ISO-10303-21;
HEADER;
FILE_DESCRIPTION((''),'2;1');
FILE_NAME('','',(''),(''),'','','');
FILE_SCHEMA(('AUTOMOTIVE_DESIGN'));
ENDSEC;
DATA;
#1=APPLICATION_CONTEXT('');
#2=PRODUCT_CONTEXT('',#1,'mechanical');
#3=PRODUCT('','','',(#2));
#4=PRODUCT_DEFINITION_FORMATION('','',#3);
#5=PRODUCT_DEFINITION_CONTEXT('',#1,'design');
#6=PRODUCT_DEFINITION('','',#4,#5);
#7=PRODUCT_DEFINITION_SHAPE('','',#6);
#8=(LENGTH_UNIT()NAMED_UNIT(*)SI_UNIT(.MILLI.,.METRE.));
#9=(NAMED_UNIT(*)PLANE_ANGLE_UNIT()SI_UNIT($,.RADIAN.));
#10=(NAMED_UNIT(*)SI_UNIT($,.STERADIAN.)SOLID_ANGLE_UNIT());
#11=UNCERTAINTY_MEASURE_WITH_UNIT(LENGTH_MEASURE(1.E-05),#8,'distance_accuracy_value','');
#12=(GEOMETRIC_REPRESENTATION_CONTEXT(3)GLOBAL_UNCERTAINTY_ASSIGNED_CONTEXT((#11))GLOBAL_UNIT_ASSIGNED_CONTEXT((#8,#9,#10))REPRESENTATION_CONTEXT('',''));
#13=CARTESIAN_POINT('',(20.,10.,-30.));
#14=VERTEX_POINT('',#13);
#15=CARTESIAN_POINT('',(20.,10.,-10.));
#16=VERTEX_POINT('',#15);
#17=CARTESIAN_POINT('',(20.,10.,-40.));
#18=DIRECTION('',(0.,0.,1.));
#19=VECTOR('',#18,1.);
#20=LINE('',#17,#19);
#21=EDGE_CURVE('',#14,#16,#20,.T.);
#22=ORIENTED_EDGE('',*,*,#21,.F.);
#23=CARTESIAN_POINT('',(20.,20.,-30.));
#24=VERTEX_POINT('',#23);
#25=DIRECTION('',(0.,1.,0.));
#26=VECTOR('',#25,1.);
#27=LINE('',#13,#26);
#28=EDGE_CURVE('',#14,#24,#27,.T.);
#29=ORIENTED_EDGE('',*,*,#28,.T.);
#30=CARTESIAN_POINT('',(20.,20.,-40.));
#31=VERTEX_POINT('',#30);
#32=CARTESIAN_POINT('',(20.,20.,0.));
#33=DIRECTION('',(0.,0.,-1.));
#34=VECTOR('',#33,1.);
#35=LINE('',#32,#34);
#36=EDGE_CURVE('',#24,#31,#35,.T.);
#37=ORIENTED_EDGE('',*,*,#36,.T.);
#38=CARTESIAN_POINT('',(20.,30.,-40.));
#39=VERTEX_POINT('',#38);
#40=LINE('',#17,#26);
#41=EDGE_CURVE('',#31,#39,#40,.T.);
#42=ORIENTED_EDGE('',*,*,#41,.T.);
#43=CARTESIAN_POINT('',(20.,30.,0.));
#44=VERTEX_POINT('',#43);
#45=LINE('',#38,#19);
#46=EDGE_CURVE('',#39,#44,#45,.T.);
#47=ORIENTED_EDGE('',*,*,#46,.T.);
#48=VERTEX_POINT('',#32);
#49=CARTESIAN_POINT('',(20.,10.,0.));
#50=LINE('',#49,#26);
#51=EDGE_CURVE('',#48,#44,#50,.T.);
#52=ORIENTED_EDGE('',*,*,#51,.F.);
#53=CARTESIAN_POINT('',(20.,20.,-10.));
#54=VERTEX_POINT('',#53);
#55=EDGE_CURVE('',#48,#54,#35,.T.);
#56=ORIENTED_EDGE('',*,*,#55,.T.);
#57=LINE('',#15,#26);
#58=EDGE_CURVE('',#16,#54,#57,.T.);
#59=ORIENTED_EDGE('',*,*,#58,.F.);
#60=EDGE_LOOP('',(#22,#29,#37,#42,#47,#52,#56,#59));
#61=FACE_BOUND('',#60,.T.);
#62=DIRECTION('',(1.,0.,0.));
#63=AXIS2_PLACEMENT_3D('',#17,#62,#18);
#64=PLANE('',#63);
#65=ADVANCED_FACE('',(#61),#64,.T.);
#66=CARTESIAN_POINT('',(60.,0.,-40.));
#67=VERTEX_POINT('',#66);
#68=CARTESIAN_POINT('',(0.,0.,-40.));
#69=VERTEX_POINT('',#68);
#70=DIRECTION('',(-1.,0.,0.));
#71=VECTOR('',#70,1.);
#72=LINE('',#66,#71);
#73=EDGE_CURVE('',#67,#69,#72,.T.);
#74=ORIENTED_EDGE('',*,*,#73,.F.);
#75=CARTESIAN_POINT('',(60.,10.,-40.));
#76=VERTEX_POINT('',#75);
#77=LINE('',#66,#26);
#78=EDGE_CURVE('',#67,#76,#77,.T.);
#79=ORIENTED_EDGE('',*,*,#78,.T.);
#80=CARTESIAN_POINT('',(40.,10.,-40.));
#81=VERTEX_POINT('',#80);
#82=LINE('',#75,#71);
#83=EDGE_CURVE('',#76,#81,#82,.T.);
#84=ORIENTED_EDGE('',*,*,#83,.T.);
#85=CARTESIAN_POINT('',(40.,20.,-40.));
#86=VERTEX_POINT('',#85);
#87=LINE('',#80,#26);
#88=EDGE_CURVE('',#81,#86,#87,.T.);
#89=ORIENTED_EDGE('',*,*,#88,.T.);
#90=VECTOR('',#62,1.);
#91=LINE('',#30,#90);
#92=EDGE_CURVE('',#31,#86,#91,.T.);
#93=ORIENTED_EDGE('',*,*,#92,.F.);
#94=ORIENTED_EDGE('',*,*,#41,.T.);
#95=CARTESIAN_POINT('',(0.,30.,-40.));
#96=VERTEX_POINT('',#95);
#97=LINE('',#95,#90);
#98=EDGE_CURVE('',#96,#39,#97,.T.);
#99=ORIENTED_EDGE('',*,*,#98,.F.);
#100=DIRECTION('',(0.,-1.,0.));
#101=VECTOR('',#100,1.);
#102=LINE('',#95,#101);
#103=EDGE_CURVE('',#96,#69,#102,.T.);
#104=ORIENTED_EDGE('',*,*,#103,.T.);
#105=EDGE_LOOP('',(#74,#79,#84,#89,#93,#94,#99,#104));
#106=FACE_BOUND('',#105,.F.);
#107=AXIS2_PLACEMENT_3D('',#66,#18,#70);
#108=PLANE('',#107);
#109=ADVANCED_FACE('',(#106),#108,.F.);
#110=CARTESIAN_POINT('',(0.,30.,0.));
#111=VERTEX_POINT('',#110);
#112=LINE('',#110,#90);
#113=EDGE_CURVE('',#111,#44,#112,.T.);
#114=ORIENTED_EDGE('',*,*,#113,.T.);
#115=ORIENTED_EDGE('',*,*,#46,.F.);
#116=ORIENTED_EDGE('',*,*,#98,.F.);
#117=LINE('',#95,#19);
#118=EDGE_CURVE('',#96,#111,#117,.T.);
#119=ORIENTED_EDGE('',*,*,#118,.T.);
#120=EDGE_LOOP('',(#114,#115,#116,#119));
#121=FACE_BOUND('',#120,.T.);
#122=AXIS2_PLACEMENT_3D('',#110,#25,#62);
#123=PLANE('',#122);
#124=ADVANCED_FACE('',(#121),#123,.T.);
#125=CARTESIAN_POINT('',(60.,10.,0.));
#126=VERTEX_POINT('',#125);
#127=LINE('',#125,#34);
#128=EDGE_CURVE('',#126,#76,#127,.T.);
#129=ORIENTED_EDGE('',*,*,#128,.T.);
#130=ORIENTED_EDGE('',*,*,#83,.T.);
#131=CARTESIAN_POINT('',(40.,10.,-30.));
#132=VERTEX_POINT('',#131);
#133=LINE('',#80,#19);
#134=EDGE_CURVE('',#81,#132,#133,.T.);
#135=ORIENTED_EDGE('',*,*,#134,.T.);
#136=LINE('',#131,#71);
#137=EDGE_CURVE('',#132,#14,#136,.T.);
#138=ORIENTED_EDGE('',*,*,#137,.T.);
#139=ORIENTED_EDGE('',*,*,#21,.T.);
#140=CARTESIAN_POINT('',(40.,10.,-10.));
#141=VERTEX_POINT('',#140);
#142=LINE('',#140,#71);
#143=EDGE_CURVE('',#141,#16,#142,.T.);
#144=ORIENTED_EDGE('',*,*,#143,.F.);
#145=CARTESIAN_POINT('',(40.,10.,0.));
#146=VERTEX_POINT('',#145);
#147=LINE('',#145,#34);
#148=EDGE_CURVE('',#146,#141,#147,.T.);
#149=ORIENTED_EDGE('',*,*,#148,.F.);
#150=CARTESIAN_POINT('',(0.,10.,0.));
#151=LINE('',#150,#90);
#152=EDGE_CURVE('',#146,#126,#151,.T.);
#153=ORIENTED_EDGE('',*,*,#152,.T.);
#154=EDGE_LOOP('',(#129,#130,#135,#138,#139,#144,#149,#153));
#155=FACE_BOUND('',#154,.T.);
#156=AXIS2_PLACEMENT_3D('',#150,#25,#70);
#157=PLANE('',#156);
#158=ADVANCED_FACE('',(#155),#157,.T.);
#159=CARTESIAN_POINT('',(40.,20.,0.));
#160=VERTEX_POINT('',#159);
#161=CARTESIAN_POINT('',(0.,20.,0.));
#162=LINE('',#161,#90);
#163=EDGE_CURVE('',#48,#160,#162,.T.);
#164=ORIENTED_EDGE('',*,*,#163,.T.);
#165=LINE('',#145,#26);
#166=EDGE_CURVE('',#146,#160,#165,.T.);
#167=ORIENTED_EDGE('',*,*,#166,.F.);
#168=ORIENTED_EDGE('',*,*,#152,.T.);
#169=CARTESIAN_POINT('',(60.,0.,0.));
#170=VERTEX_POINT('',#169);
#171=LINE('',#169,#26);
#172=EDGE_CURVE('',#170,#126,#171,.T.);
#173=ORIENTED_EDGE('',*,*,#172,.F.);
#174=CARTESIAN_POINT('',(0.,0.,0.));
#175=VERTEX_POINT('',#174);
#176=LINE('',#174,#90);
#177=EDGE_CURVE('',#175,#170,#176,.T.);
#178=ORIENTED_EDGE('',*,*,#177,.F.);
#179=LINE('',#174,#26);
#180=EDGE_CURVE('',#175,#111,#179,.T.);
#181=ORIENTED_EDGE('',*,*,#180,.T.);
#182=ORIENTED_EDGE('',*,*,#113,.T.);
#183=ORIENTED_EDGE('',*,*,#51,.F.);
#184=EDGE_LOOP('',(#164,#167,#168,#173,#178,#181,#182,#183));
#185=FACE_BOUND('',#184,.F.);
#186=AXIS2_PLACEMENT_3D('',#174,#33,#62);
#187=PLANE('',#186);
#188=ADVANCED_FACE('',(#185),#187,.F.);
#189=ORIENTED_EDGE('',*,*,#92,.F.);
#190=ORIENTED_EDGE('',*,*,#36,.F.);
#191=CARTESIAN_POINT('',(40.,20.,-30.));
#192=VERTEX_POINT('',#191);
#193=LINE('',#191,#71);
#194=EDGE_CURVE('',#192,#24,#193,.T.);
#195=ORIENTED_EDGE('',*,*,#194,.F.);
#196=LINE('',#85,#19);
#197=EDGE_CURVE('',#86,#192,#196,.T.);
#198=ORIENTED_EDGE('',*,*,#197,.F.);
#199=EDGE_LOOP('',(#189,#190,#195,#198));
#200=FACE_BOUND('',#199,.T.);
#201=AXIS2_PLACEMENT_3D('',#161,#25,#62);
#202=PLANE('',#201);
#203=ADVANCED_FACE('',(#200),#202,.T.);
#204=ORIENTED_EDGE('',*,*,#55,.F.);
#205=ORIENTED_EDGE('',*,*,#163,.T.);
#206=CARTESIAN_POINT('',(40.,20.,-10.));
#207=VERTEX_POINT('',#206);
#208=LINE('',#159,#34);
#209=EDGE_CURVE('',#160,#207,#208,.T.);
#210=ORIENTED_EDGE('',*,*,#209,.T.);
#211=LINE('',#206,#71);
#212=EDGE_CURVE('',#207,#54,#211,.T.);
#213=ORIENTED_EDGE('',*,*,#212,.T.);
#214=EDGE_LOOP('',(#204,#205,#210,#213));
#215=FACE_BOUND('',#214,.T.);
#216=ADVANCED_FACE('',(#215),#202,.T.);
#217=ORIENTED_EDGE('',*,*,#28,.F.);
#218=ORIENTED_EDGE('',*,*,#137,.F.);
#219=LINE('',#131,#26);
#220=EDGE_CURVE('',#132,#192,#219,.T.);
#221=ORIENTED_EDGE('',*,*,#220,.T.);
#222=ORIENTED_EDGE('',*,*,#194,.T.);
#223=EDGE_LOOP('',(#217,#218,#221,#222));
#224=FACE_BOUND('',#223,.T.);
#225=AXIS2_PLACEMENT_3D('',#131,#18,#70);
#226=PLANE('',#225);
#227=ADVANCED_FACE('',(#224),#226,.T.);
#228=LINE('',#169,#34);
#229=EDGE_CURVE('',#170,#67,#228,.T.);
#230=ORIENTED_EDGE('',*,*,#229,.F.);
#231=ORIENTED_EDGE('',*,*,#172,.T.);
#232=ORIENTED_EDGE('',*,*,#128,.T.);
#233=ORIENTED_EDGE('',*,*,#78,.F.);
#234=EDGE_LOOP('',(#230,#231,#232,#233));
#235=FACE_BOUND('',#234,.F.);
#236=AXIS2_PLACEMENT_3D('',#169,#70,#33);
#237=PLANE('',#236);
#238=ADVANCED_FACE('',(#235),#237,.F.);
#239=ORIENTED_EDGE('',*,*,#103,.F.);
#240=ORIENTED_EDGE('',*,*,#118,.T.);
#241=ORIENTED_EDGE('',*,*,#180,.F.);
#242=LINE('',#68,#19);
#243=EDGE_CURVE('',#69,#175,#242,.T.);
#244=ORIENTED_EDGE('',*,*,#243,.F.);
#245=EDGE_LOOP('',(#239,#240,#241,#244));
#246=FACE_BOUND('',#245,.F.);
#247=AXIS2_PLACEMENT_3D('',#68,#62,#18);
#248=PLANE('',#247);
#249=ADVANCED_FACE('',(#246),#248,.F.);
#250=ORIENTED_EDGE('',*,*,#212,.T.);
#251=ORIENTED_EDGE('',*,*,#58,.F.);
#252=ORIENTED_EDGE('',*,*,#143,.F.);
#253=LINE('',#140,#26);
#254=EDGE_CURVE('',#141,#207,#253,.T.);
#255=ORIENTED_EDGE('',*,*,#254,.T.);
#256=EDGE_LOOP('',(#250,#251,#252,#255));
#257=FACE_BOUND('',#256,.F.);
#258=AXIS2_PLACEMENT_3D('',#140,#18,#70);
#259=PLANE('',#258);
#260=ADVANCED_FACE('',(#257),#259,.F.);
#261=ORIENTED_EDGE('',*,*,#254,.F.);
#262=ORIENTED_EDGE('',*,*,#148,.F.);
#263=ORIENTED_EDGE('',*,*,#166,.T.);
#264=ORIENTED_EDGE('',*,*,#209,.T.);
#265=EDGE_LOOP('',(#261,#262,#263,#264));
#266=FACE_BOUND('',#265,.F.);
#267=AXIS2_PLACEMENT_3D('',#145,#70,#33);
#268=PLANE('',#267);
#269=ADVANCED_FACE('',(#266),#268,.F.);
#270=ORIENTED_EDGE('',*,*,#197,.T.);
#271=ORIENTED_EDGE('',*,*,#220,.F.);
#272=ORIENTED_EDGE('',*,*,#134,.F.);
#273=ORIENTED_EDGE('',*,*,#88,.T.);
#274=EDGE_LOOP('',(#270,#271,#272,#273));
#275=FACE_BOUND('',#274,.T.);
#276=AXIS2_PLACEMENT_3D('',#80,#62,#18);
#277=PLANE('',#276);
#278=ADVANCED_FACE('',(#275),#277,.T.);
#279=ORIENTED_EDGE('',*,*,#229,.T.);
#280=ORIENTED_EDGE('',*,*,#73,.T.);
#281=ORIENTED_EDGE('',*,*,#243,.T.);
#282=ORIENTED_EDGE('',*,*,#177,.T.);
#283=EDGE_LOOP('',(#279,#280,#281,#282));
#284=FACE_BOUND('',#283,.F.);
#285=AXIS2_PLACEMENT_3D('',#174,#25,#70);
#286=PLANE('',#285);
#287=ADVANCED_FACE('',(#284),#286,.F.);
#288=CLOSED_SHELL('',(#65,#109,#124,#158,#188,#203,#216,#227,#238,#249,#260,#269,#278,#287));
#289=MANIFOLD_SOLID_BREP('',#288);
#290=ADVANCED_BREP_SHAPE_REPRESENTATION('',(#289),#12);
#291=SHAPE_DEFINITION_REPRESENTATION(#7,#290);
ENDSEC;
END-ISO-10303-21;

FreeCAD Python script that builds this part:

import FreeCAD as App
import Part
import Sketcher

V = App.Vector


def add_polygon(sketch, points):
    """Adds a closed chain of lines whose ends are joined by coincident constraints."""
    first, n = sketch.GeometryCount, len(points)
    for a, b in zip(points, points[1:] + points[:1]):
        sketch.addGeometry(Part.LineSegment(App.Vector(*a, 0), App.Vector(*b, 0)), False)
    for i in range(n):
        sketch.addConstraint(Sketcher.Constraint("Coincident", first + i, 2, first + (i + 1) % n, 1))

doc = App.newDocument("Part")
body = doc.addObject("PartDesign::Body", "Body")

sketch1 = body.newObject("Sketcher::SketchObject", "Sketch")
sketch1.AttachmentSupport = (doc.getObject("XZ_Plane"), [""])
sketch1.MapMode = "FlatFace"
add_polygon(sketch1, [(0, -40), (0, 0), (60, 0), (60, -40)])
sketch1.addConstraint(Sketcher.Constraint("Vertical", 0))
sketch1.addConstraint(Sketcher.Constraint("Horizontal", 1))
sketch1.addConstraint(Sketcher.Constraint("Vertical", 2))
sketch1.addConstraint(Sketcher.Constraint("Horizontal", 3))
sketch1.addConstraint(Sketcher.Constraint("Coincident", 0, 2, -1, 1))
sketch1.addConstraint(Sketcher.Constraint("DistanceX", 1, 1, 1, 2, 60.0))
sketch1.addConstraint(Sketcher.Constraint("DistanceY", 0, 1, 0, 2, 40.0))
pad1 = body.newObject("PartDesign::Pad", "Pad")
pad1.Profile = sketch1
pad1.Length = 10
pad1.Reversed = True

sketch2 = body.newObject("Sketcher::SketchObject", "Sketch001")
sketch2.AttachmentSupport = (doc.getObject("XZ_Plane"), [""])
sketch2.MapMode = "FlatFace"
sketch2.AttachmentOffset = App.Placement(V(0, 0, -10), App.Rotation())
add_polygon(sketch2, [(20, -40), (0, -40), (0, 0), (20, 0)])
sketch2.addConstraint(Sketcher.Constraint("Horizontal", 0))
sketch2.addConstraint(Sketcher.Constraint("Vertical", 1))
sketch2.addConstraint(Sketcher.Constraint("Horizontal", 2))
sketch2.addConstraint(Sketcher.Constraint("Vertical", 3))
sketch2.addConstraint(Sketcher.Constraint("Coincident", 1, 2, -1, 1))
sketch2.addConstraint(Sketcher.Constraint("DistanceX", 0, 2, 0, 1, 20.0))
sketch2.addConstraint(Sketcher.Constraint("DistanceY", 1, 1, 1, 2, 40.0))
pad2 = body.newObject("PartDesign::Pad", "Pad001")
pad2.Profile = sketch2
pad2.Length = 20
pad2.Reversed = True

sketch3 = body.newObject("Sketcher::SketchObject", "Sketch002")
sketch3.AttachmentSupport = (doc.getObject("XZ_Plane"), [""])
sketch3.MapMode = "FlatFace"
sketch3.AttachmentOffset = App.Placement(V(0, 0, -10), App.Rotation())
add_polygon(sketch3, [(20, -40), (20, -30), (40, -30), (40, -40)])
add_polygon(sketch3, [(20, -10), (20, 0), (40, 0), (40, -10)])
sketch3.addConstraint(Sketcher.Constraint("Vertical", 0))
sketch3.addConstraint(Sketcher.Constraint("Horizontal", 1))
sketch3.addConstraint(Sketcher.Constraint("Vertical", 2))
sketch3.addConstraint(Sketcher.Constraint("Horizontal", 3))
sketch3.addConstraint(Sketcher.Constraint("Vertical", 4))
sketch3.addConstraint(Sketcher.Constraint("Horizontal", 5))
sketch3.addConstraint(Sketcher.Constraint("Vertical", 6))
sketch3.addConstraint(Sketcher.Constraint("Horizontal", 7))
sketch3.addConstraint(Sketcher.Constraint("PointOnObject", 4, 2, -1))
sketch3.addConstraint(Sketcher.Constraint("Vertical", 3, 2, 4, 2))
sketch3.addConstraint(Sketcher.Constraint("Vertical", 2, 2, 5, 2))
sketch3.addConstraint(Sketcher.Constraint("Equal", 2, 4))
sketch3.addConstraint(Sketcher.Constraint("DistanceX", 1, 1, 1, 2, 20.0))
sketch3.addConstraint(Sketcher.Constraint("DistanceY", 0, 1, 0, 2, 10.0))
sketch3.addConstraint(Sketcher.Constraint("DistanceX", -1, 1, 0, 2, 20.0))
sketch3.addConstraint(Sketcher.Constraint("DistanceY", 1, 2, 6, 2, 20.0))
pad3 = body.newObject("PartDesign::Pad", "Pad002")
pad3.Profile = sketch3
pad3.Length = 10
pad3.Reversed = True

doc.recompute()
